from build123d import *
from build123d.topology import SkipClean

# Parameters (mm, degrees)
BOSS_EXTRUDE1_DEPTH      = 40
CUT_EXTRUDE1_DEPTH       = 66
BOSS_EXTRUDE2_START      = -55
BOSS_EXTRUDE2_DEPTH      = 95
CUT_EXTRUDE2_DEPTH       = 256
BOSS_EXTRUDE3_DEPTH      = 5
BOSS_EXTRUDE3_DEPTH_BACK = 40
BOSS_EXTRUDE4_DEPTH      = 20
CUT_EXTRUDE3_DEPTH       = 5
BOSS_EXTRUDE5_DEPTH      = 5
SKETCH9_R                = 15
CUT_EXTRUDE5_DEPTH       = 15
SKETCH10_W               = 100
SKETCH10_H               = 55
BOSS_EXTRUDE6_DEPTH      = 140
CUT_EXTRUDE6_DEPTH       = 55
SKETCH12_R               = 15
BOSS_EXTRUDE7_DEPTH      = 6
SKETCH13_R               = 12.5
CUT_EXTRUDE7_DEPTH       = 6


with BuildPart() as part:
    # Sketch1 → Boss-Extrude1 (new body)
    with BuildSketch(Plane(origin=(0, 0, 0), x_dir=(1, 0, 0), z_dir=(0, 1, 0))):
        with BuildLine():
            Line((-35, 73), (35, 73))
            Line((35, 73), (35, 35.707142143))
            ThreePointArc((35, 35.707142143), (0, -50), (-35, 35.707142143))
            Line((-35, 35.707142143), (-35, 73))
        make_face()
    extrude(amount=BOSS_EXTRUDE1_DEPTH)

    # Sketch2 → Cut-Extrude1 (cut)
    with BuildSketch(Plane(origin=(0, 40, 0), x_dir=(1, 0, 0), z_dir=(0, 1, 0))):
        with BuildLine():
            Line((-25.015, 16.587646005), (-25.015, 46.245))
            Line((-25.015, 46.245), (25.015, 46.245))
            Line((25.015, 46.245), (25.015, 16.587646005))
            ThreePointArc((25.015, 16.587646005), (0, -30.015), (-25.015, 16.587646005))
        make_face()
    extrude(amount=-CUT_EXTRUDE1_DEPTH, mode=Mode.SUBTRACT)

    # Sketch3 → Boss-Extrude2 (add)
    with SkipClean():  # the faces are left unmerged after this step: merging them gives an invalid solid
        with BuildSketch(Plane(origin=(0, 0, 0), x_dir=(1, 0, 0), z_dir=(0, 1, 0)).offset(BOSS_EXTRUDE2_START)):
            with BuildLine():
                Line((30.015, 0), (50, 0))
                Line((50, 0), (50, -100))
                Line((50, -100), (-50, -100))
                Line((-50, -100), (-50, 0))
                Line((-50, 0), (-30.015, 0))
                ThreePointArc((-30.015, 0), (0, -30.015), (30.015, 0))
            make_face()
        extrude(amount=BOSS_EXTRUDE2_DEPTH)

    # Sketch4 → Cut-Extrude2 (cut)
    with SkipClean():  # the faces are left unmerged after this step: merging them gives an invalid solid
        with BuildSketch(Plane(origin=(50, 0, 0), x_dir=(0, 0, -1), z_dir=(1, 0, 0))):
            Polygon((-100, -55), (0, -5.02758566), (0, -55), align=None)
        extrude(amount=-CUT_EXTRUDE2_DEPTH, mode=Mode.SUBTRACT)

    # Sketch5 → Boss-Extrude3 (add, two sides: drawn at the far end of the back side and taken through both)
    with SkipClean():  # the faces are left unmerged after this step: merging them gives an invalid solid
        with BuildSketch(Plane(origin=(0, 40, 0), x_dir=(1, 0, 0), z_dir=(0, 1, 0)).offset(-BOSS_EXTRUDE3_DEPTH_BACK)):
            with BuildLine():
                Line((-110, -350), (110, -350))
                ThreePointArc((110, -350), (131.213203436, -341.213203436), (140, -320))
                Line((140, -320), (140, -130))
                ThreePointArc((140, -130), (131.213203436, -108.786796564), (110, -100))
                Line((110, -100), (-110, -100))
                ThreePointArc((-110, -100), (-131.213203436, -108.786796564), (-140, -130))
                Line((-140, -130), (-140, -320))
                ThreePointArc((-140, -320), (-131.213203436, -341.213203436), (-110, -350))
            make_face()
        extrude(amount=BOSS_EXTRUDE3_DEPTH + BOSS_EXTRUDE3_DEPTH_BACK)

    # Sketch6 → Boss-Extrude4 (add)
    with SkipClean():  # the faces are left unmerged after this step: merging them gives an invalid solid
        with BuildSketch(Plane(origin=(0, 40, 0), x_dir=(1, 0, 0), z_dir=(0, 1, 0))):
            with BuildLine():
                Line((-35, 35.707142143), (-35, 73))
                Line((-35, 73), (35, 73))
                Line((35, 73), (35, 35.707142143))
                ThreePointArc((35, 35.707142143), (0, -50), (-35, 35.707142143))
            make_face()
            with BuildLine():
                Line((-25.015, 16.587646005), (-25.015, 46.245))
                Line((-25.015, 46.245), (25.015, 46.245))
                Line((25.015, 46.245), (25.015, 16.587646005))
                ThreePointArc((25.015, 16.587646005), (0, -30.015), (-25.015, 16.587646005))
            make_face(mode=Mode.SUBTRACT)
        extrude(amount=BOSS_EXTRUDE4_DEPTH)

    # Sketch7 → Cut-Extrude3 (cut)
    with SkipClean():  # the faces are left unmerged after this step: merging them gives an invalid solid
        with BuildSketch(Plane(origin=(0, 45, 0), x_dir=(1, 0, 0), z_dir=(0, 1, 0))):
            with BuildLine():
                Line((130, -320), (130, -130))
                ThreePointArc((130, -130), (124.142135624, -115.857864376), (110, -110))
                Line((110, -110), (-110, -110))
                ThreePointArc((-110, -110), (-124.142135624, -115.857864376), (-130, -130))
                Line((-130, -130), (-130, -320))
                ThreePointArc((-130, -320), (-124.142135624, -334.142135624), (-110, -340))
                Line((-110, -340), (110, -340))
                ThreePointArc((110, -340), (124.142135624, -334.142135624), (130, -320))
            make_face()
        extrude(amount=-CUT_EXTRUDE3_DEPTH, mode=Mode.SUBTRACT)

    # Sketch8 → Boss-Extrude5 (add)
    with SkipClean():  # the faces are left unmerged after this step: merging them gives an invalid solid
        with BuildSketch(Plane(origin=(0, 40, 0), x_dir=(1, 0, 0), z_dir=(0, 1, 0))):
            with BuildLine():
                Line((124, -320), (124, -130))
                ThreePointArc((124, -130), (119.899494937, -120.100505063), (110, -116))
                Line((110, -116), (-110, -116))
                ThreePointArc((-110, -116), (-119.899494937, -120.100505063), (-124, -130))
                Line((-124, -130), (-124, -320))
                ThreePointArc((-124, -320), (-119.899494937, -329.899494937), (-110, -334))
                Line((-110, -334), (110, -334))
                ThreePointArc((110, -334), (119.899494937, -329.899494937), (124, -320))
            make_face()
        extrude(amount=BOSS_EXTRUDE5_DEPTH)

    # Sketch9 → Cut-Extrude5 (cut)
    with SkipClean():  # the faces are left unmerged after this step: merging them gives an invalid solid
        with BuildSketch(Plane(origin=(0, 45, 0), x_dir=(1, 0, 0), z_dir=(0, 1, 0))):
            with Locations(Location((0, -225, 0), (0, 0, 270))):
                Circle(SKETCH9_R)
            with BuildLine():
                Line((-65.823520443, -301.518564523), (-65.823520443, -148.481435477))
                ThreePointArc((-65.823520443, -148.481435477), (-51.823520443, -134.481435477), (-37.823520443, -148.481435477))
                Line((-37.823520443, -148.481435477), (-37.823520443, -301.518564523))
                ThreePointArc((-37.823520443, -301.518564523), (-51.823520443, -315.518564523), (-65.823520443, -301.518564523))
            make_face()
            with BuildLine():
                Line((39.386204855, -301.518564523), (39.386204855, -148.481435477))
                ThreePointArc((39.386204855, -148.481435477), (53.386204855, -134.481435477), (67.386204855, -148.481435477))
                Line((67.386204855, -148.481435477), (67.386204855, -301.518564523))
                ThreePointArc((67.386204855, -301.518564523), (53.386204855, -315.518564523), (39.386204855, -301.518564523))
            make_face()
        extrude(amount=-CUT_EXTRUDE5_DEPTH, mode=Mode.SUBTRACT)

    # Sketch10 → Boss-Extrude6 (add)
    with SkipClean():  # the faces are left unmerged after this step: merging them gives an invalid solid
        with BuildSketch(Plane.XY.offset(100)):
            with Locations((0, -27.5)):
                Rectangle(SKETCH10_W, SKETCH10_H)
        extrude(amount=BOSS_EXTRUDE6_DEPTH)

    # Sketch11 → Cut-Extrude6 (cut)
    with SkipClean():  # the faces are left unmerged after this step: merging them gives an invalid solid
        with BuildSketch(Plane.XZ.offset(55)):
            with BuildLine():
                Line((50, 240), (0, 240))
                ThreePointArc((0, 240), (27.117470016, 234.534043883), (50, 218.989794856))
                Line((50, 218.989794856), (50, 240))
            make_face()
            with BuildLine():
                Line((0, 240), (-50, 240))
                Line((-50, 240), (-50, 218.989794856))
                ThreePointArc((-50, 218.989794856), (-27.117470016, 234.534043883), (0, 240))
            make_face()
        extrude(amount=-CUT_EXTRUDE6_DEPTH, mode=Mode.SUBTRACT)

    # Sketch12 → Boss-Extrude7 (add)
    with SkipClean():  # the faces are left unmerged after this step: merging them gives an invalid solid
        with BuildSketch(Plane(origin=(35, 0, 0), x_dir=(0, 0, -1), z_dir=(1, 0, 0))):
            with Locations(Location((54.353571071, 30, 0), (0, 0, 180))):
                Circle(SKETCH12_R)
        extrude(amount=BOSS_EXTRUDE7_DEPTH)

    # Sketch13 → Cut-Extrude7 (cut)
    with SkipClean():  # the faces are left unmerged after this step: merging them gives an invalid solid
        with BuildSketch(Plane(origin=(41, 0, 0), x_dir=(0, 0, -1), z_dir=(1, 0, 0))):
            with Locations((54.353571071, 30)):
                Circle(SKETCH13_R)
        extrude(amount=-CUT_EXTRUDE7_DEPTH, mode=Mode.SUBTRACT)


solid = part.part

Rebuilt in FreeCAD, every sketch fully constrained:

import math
import FreeCAD as App
import Part
import Sketcher
from FreeCAD import Vector
Q = App.Units.Quantity

doc = App.newDocument("Part")
body = doc.addObject("PartDesign::Body", "Body")

# Sketch on XZ plane
sketch1 = body.newObject("Sketcher::SketchObject", "Sketch")
sketch1.AttachmentSupport = (doc.getObject("XZ_Plane"), [""])
sketch1.MapMode = "FlatFace"
sketch1.addGeometry(Part.LineSegment(Vector(35, -73, 0), Vector(-35, -73, 0)), False)
sketch1.addGeometry(Part.LineSegment(Vector(-35, -73, 0), Vector(-35, -36, 0)), False)
sketch1.addGeometry(Part.ArcOfCircle(Part.Circle(Vector(0, 0, 0), Vector(0, 0, 1), 50), math.radians(-46), math.radians(226)), False)
sketch1.addGeometry(Part.LineSegment(Vector(35, -36, 0), Vector(35, -73, 0)), False)
sketch1.addConstraint(Sketcher.Constraint("Coincident", 0, 2, 1, 1))
sketch1.addConstraint(Sketcher.Constraint("Coincident", 1, 2, 2, 2))
sketch1.addConstraint(Sketcher.Constraint("Coincident", 2, 1, 3, 1))
sketch1.addConstraint(Sketcher.Constraint("Coincident", 3, 2, 0, 1))
sketch1.addConstraint(Sketcher.Constraint("Horizontal", 0))
sketch1.addConstraint(Sketcher.Constraint("Vertical", 1))
sketch1.addConstraint(Sketcher.Constraint("Vertical", 3))
sketch1.addConstraint(Sketcher.Constraint("Coincident", 2, 3, -1, 1))
sketch1.addConstraint(Sketcher.Constraint("Horizontal", 1, 2, 2, 1))
sketch1.addConstraint(Sketcher.Constraint("Radius", 2, Q("50 mm")))
sketch1.addConstraint(Sketcher.Constraint("DistanceX", 0, 2, 0, 1, Q("70 mm")))
sketch1.addConstraint(Sketcher.Constraint("DistanceY", 0, 2, -1, 1, Q("73 mm")))
pad1 = body.newObject("PartDesign::Pad", "Pad")
pad1.Profile = sketch1
pad1.Length = 40
pad1.Reversed = True

# Sketch on XZ plane
sketch2 = body.newObject("Sketcher::SketchObject", "Sketch001")
sketch2.AttachmentSupport = (doc.getObject("XZ_Plane"), [""])
sketch2.MapMode = "FlatFace"
sketch2.AttachmentOffset = App.Placement(Vector(0, 0, -40), App.Rotation())
sketch2.addGeometry(Part.LineSegment(Vector(-25, -46, 0), Vector(-25, -17, 0)), False)
sketch2.addGeometry(Part.ArcOfCircle(Part.Circle(Vector(0, 0, 0), Vector(0, 0, 1), 30), math.radians(-34), math.radians(214)), False)
sketch2.addGeometry(Part.LineSegment(Vector(25, -17, 0), Vector(25, -46, 0)), False)
sketch2.addGeometry(Part.LineSegment(Vector(25, -46, 0), Vector(-25, -46, 0)), False)
sketch2.addConstraint(Sketcher.Constraint("Coincident", 0, 2, 1, 2))
sketch2.addConstraint(Sketcher.Constraint("Coincident", 1, 1, 2, 1))
sketch2.addConstraint(Sketcher.Constraint("Coincident", 2, 2, 3, 1))
sketch2.addConstraint(Sketcher.Constraint("Coincident", 3, 2, 0, 1))
sketch2.addConstraint(Sketcher.Constraint("Vertical", 0))
sketch2.addConstraint(Sketcher.Constraint("Vertical", 2))
sketch2.addConstraint(Sketcher.Constraint("Horizontal", 3))
sketch2.addConstraint(Sketcher.Constraint("Coincident", 1, 3, -1, 1))
sketch2.addConstraint(Sketcher.Constraint("Horizontal", 0, 2, 1, 1))
sketch2.addConstraint(Sketcher.Constraint("Radius", 1, Q("30.015 mm")))
sketch2.addConstraint(Sketcher.Constraint("DistanceX", 3, 2, 3, 1, Q("50.03 mm")))
sketch2.addConstraint(Sketcher.Constraint("DistanceY", 2, 2, -1, 1, Q("46.245 mm")))
pocket1 = body.newObject("PartDesign::Pocket", "Pocket")
pocket1.Profile = sketch2
pocket1.Length = 66
pocket1.Reversed = True

# Sketch on XZ plane
sketch3 = body.newObject("Sketcher::SketchObject", "Sketch002")
sketch3.AttachmentSupport = (doc.getObject("XZ_Plane"), [""])
sketch3.MapMode = "FlatFace"
sketch3.AttachmentOffset = App.Placement(Vector(0, 0, 55), App.Rotation())
sketch3.addGeometry(Part.LineSegment(Vector(50, 0, 0), Vector(30, 0, 0)), False)
sketch3.addGeometry(Part.ArcOfCircle(Part.Circle(Vector(0, 0, 0), Vector(0, 0, 1), 30), math.radians(0), math.radians(180)), False)
sketch3.addGeometry(Part.LineSegment(Vector(-30, 0, 0), Vector(-50, 0, 0)), False)
sketch3.addGeometry(Part.LineSegment(Vector(-50, 0, 0), Vector(-50, 100, 0)), False)
sketch3.addGeometry(Part.LineSegment(Vector(-50, 100, 0), Vector(50, 100, 0)), False)
sketch3.addGeometry(Part.LineSegment(Vector(50, 100, 0), Vector(50, 0, 0)), False)
sketch3.addConstraint(Sketcher.Constraint("Coincident", 0, 2, 1, 1))
sketch3.addConstraint(Sketcher.Constraint("Coincident", 1, 2, 2, 1))
sketch3.addConstraint(Sketcher.Constraint("Coincident", 2, 2, 3, 1))
sketch3.addConstraint(Sketcher.Constraint("Coincident", 3, 2, 4, 1))
sketch3.addConstraint(Sketcher.Constraint("Coincident", 4, 2, 5, 1))
sketch3.addConstraint(Sketcher.Constraint("Coincident", 5, 2, 0, 1))
sketch3.addConstraint(Sketcher.Constraint("Horizontal", 0))
sketch3.addConstraint(Sketcher.Constraint("Horizontal", 2))
sketch3.addConstraint(Sketcher.Constraint("Vertical", 3))
sketch3.addConstraint(Sketcher.Constraint("Horizontal", 4))
sketch3.addConstraint(Sketcher.Constraint("Vertical", 5))
sketch3.addConstraint(Sketcher.Constraint("Coincident", 1, 3, -1, 1))
sketch3.addConstraint(Sketcher.Constraint("Symmetric", 2, 2, 5, 2, -1, 1))
sketch3.addConstraint(Sketcher.Constraint("PointOnObject", 0, 2, -1))
sketch3.addConstraint(Sketcher.Constraint("Equal", 4, 3))
sketch3.addConstraint(Sketcher.Constraint("DistanceX", 4, 1, 4, 2, Q("100 mm")))
sketch3.addConstraint(Sketcher.Constraint("Radius", 1, Q("30.015 mm")))
pad2 = body.newObject("PartDesign::Pad", "Pad001")
pad2.Profile = sketch3
pad2.Length = 95
pad2.Reversed = True

# Sketch on YZ plane
sketch4 = body.newObject("Sketcher::SketchObject", "Sketch003")
sketch4.AttachmentSupport = (doc.getObject("YZ_Plane"), [""])
sketch4.MapMode = "FlatFace"
sketch4.AttachmentOffset = App.Placement(Vector(0, 0, 50), App.Rotation())
sketch4.addGeometry(Part.LineSegment(Vector(-5, 0, 0), Vector(-55, 100, 0)), False)
sketch4.addGeometry(Part.LineSegment(Vector(-55, 100, 0), Vector(-55, 0, 0)), False)
sketch4.addGeometry(Part.LineSegment(Vector(-55, 0, 0), Vector(-5, 0, 0)), False)
sketch4.addConstraint(Sketcher.Constraint("Coincident", 0, 2, 1, 1))
sketch4.addConstraint(Sketcher.Constraint("Coincident", 1, 2, 2, 1))
sketch4.addConstraint(Sketcher.Constraint("Coincident", 2, 2, 0, 1))
sketch4.addConstraint(Sketcher.Constraint("Vertical", 1))
sketch4.addConstraint(Sketcher.Constraint("Horizontal", 2))
sketch4.addConstraint(Sketcher.Constraint("PointOnObject", 1, 2, -1))
sketch4.addConstraint(Sketcher.Constraint("DistanceY", 1, 2, 1, 1, Q("100 mm")))
sketch4.addConstraint(Sketcher.Constraint("DistanceX", 0, 2, -1, 1, Q("55 mm")))
sketch4.addConstraint(Sketcher.Constraint("DistanceX", 2, 1, 2, 2, Q("49.972414 mm")))
pocket2 = body.newObject("PartDesign::Pocket", "Pocket001")
pocket2.Profile = sketch4
pocket2.Length = 256

# Sketch on XZ plane
sketch5 = body.newObject("Sketcher::SketchObject", "Sketch004")
sketch5.AttachmentSupport = (doc.getObject("XZ_Plane"), [""])
sketch5.MapMode = "FlatFace"
sketch5.AttachmentOffset = App.Placement(Vector(0, 0, -40), App.Rotation())
sketch5.addGeometry(Part.LineSegment(Vector(-110, 350, 0), Vector(110, 350, 0)), False)
sketch5.addGeometry(Part.ArcOfCircle(Part.Circle(Vector(110, 320, 0), Vector(0, 0, 1), 30), math.radians(0), math.radians(90)), False)
sketch5.addGeometry(Part.LineSegment(Vector(140, 320, 0), Vector(140, 130, 0)), False)
sketch5.addGeometry(Part.ArcOfCircle(Part.Circle(Vector(110, 130, 0), Vector(0, 0, 1), 30), math.radians(-90), math.radians(0)), False)
sketch5.addGeometry(Part.LineSegment(Vector(110, 100, 0), Vector(-110, 100, 0)), False)
sketch5.addGeometry(Part.ArcOfCircle(Part.Circle(Vector(-110, 130, 0), Vector(0, 0, 1), 30), math.radians(180), math.radians(270)), False)
sketch5.addGeometry(Part.LineSegment(Vector(-140, 130, 0), Vector(-140, 320, 0)), False)
sketch5.addGeometry(Part.ArcOfCircle(Part.Circle(Vector(-110, 320, 0), Vector(0, 0, 1), 30), math.radians(90), math.radians(180)), False)
sketch5.addConstraint(Sketcher.Constraint("Tangent", 0, 2, 1, 2))
sketch5.addConstraint(Sketcher.Constraint("Tangent", 1, 1, 2, 1))
sketch5.addConstraint(Sketcher.Constraint("Tangent", 2, 2, 3, 2))
sketch5.addConstraint(Sketcher.Constraint("Tangent", 3, 1, 4, 1))
sketch5.addConstraint(Sketcher.Constraint("Tangent", 4, 2, 5, 2))
sketch5.addConstraint(Sketcher.Constraint("Tangent", 5, 1, 6, 1))
sketch5.addConstraint(Sketcher.Constraint("Tangent", 6, 2, 7, 2))
sketch5.addConstraint(Sketcher.Constraint("Tangent", 7, 1, 0, 1))
sketch5.addConstraint(Sketcher.Constraint("Horizontal", 0))
sketch5.addConstraint(Sketcher.Constraint("Vertical", 2))
sketch5.addConstraint(Sketcher.Constraint("Horizontal", 4))
sketch5.addConstraint(Sketcher.Constraint("Vertical", 6))
sketch5.addConstraint(Sketcher.Constraint("Equal", 1, 3))
sketch5.addConstraint(Sketcher.Constraint("Equal", 3, 5))
sketch5.addConstraint(Sketcher.Constraint("Equal", 5, 7))
sketch5.addConstraint(Sketcher.Constraint("Radius", 1, Q("30 mm")))
sketch5.addConstraint(Sketcher.Constraint("DistanceX", 0, 1, 0, 2, Q("220 mm")))
sketch5.addConstraint(Sketcher.Constraint("DistanceY", 2, 2, 2, 1, Q("190 mm")))
sketch5.addConstraint(Sketcher.Constraint("DistanceX", -1, 1, 1, 3, Q("110 mm")))
sketch5.addConstraint(Sketcher.Constraint("DistanceY", -1, 1, 1, 3, Q("320 mm")))
pad3 = body.newObject("PartDesign::Pad", "Pad002")
pad3.Profile = sketch5
pad3.Type = "TwoLengths"
pad3.Length = 5
pad3.Length2 = 40
pad3.Reversed = True

# Sketch on XZ plane
sketch6 = body.newObject("Sketcher::SketchObject", "Sketch005")
sketch6.AttachmentSupport = (doc.getObject("XZ_Plane"), [""])
sketch6.MapMode = "FlatFace"
sketch6.AttachmentOffset = App.Placement(Vector(0, 0, -40), App.Rotation())
sketch6.addGeometry(Part.LineSegment(Vector(-35, -73, 0), Vector(-35, -36, 0)), False)
sketch6.addGeometry(Part.ArcOfCircle(Part.Circle(Vector(0, 0, 0), Vector(0, 0, 1), 50), math.radians(-46), math.radians(226)), False)
sketch6.addGeometry(Part.LineSegment(Vector(35, -36, 0), Vector(35, -73, 0)), False)
sketch6.addGeometry(Part.LineSegment(Vector(35, -73, 0), Vector(-35, -73, 0)), False)
sketch6.addGeometry(Part.LineSegment(Vector(-25, -17, 0), Vector(-25, -46, 0)), False)
sketch6.addGeometry(Part.LineSegment(Vector(-25, -46, 0), Vector(25, -46, 0)), False)
sketch6.addGeometry(Part.LineSegment(Vector(25, -46, 0), Vector(25, -17, 0)), False)
sketch6.addGeometry(Part.ArcOfCircle(Part.Circle(Vector(0, 0, 0), Vector(0, 0, 1), 30), math.radians(-34), math.radians(214)), False)
sketch6.addConstraint(Sketcher.Constraint("Coincident", 0, 2, 1, 2))
sketch6.addConstraint(Sketcher.Constraint("Coincident", 1, 1, 2, 1))
sketch6.addConstraint(Sketcher.Constraint("Coincident", 2, 2, 3, 1))
sketch6.addConstraint(Sketcher.Constraint("Coincident", 3, 2, 0, 1))
sketch6.addConstraint(Sketcher.Constraint("Coincident", 4, 2, 5, 1))
sketch6.addConstraint(Sketcher.Constraint("Coincident", 5, 2, 6, 1))
sketch6.addConstraint(Sketcher.Constraint("Coincident", 6, 2, 7, 1))
sketch6.addConstraint(Sketcher.Constraint("Coincident", 7, 2, 4, 1))
sketch6.addConstraint(Sketcher.Constraint("Vertical", 0))
sketch6.addConstraint(Sketcher.Constraint("Vertical", 2))
sketch6.addConstraint(Sketcher.Constraint("Horizontal", 3))
sketch6.addConstraint(Sketcher.Constraint("Vertical", 4))
sketch6.addConstraint(Sketcher.Constraint("Horizontal", 5))
sketch6.addConstraint(Sketcher.Constraint("Vertical", 6))
sketch6.addConstraint(Sketcher.Constraint("Coincident", 1, 3, -1, 1))
sketch6.addConstraint(Sketcher.Constraint("Coincident", 7, 3, -1, 1))
sketch6.addConstraint(Sketcher.Constraint("Horizontal", 0, 2, 1, 1))
sketch6.addConstraint(Sketcher.Constraint("Horizontal", 6, 2, 7, 2))
sketch6.addConstraint(Sketcher.Constraint("Radius", 1, Q("50 mm")))
sketch6.addConstraint(Sketcher.Constraint("DistanceX", 3, 2, 3, 1, Q("70 mm")))
sketch6.addConstraint(Sketcher.Constraint("DistanceY", 2, 2, -1, 1, Q("73 mm")))
sketch6.addConstraint(Sketcher.Constraint("Radius", 7, Q("30.015 mm")))
sketch6.addConstraint(Sketcher.Constraint("DistanceX", 5, 1, 5, 2, Q("50.03 mm")))
sketch6.addConstraint(Sketcher.Constraint("DistanceY", 4, 2, -1, 1, Q("46.245 mm")))
pad4 = body.newObject("PartDesign::Pad", "Pad003")
pad4.Profile = sketch6
pad4.Length = 20
pad4.Reversed = True

# Sketch on XZ plane
sketch7 = body.newObject("Sketcher::SketchObject", "Sketch006")
sketch7.AttachmentSupport = (doc.getObject("XZ_Plane"), [""])
sketch7.MapMode = "FlatFace"
sketch7.AttachmentOffset = App.Placement(Vector(0, 0, -45), App.Rotation())
sketch7.addGeometry(Part.LineSegment(Vector(130, 320, 0), Vector(130, 130, 0)), False)
sketch7.addGeometry(Part.ArcOfCircle(Part.Circle(Vector(110, 130, 0), Vector(0, 0, 1), 20), math.radians(-90), math.radians(0)), False)
sketch7.addGeometry(Part.LineSegment(Vector(110, 110, 0), Vector(-110, 110, 0)), False)
sketch7.addGeometry(Part.ArcOfCircle(Part.Circle(Vector(-110, 130, 0), Vector(0, 0, 1), 20), math.radians(180), math.radians(270)), False)
sketch7.addGeometry(Part.LineSegment(Vector(-130, 130, 0), Vector(-130, 320, 0)), False)
sketch7.addGeometry(Part.ArcOfCircle(Part.Circle(Vector(-110, 320, 0), Vector(0, 0, 1), 20), math.radians(90), math.radians(180)), False)
sketch7.addGeometry(Part.LineSegment(Vector(-110, 340, 0), Vector(110, 340, 0)), False)
sketch7.addGeometry(Part.ArcOfCircle(Part.Circle(Vector(110, 320, 0), Vector(0, 0, 1), 20), math.radians(0), math.radians(90)), False)
sketch7.addConstraint(Sketcher.Constraint("Tangent", 0, 2, 1, 2))
sketch7.addConstraint(Sketcher.Constraint("Tangent", 1, 1, 2, 1))
sketch7.addConstraint(Sketcher.Constraint("Tangent", 2, 2, 3, 2))
sketch7.addConstraint(Sketcher.Constraint("Tangent", 3, 1, 4, 1))
sketch7.addConstraint(Sketcher.Constraint("Tangent", 4, 2, 5, 2))
sketch7.addConstraint(Sketcher.Constraint("Tangent", 5, 1, 6, 1))
sketch7.addConstraint(Sketcher.Constraint("Tangent", 6, 2, 7, 2))
sketch7.addConstraint(Sketcher.Constraint("Tangent", 7, 1, 0, 1))
sketch7.addConstraint(Sketcher.Constraint("Vertical", 0))
sketch7.addConstraint(Sketcher.Constraint("Horizontal", 2))
sketch7.addConstraint(Sketcher.Constraint("Vertical", 4))
sketch7.addConstraint(Sketcher.Constraint("Horizontal", 6))
sketch7.addConstraint(Sketcher.Constraint("Equal", 1, 3))
sketch7.addConstraint(Sketcher.Constraint("Equal", 3, 5))
sketch7.addConstraint(Sketcher.Constraint("Equal", 5, 7))
sketch7.addConstraint(Sketcher.Constraint("Radius", 1, Q("20 mm")))
sketch7.addConstraint(Sketcher.Constraint("DistanceX", 2, 2, 2, 1, Q("220 mm")))
sketch7.addConstraint(Sketcher.Constraint("DistanceY", 0, 2, 0, 1, Q("190 mm")))
sketch7.addConstraint(Sketcher.Constraint("DistanceX", -1, 1, 1, 3, Q("110 mm")))
sketch7.addConstraint(Sketcher.Constraint("DistanceY", -1, 1, 1, 3, Q("130 mm")))
pocket3 = body.newObject("PartDesign::Pocket", "Pocket002")
pocket3.Profile = sketch7
pocket3.Length = 5
pocket3.Reversed = True

# Sketch on XZ plane
sketch8 = body.newObject("Sketcher::SketchObject", "Sketch007")
sketch8.AttachmentSupport = (doc.getObject("XZ_Plane"), [""])
sketch8.MapMode = "FlatFace"
sketch8.AttachmentOffset = App.Placement(Vector(0, 0, -40), App.Rotation())
sketch8.addGeometry(Part.LineSegment(Vector(124, 320, 0), Vector(124, 130, 0)), False)
sketch8.addGeometry(Part.ArcOfCircle(Part.Circle(Vector(110, 130, 0), Vector(0, 0, 1), 14), math.radians(-90), math.radians(0)), False)
sketch8.addGeometry(Part.LineSegment(Vector(110, 116, 0), Vector(-110, 116, 0)), False)
sketch8.addGeometry(Part.ArcOfCircle(Part.Circle(Vector(-110, 130, 0), Vector(0, 0, 1), 14), math.radians(180), math.radians(270)), False)
sketch8.addGeometry(Part.LineSegment(Vector(-124, 130, 0), Vector(-124, 320, 0)), False)
sketch8.addGeometry(Part.ArcOfCircle(Part.Circle(Vector(-110, 320, 0), Vector(0, 0, 1), 14), math.radians(90), math.radians(180)), False)
sketch8.addGeometry(Part.LineSegment(Vector(-110, 334, 0), Vector(110, 334, 0)), False)
sketch8.addGeometry(Part.ArcOfCircle(Part.Circle(Vector(110, 320, 0), Vector(0, 0, 1), 14), math.radians(0), math.radians(90)), False)
sketch8.addConstraint(Sketcher.Constraint("Tangent", 0, 2, 1, 2))
sketch8.addConstraint(Sketcher.Constraint("Tangent", 1, 1, 2, 1))
sketch8.addConstraint(Sketcher.Constraint("Tangent", 2, 2, 3, 2))
sketch8.addConstraint(Sketcher.Constraint("Tangent", 3, 1, 4, 1))
sketch8.addConstraint(Sketcher.Constraint("Tangent", 4, 2, 5, 2))
sketch8.addConstraint(Sketcher.Constraint("Tangent", 5, 1, 6, 1))
sketch8.addConstraint(Sketcher.Constraint("Tangent", 6, 2, 7, 2))
sketch8.addConstraint(Sketcher.Constraint("Tangent", 7, 1, 0, 1))
sketch8.addConstraint(Sketcher.Constraint("Vertical", 0))
sketch8.addConstraint(Sketcher.Constraint("Horizontal", 2))
sketch8.addConstraint(Sketcher.Constraint("Vertical", 4))
sketch8.addConstraint(Sketcher.Constraint("Horizontal", 6))
sketch8.addConstraint(Sketcher.Constraint("Equal", 1, 3))
sketch8.addConstraint(Sketcher.Constraint("Equal", 3, 5))
sketch8.addConstraint(Sketcher.Constraint("Equal", 5, 7))
sketch8.addConstraint(Sketcher.Constraint("Radius", 1, Q("14 mm")))
sketch8.addConstraint(Sketcher.Constraint("DistanceX", 2, 2, 2, 1, Q("220 mm")))
sketch8.addConstraint(Sketcher.Constraint("DistanceY", 0, 2, 0, 1, Q("190 mm")))
sketch8.addConstraint(Sketcher.Constraint("DistanceX", -1, 1, 1, 3, Q("110 mm")))
sketch8.addConstraint(Sketcher.Constraint("DistanceY", -1, 1, 1, 3, Q("130 mm")))
pad5 = body.newObject("PartDesign::Pad", "Pad004")
pad5.Profile = sketch8
pad5.Length = 5
pad5.Reversed = True

# Sketch on XZ plane
sketch9 = body.newObject("Sketcher::SketchObject", "Sketch008")
sketch9.AttachmentSupport = (doc.getObject("XZ_Plane"), [""])
sketch9.MapMode = "FlatFace"
sketch9.AttachmentOffset = App.Placement(Vector(0, 0, -45), App.Rotation())
sketch9.addGeometry(Part.Circle(Vector(0, 225, 0), Vector(0, 0, 1), 15), False)
sketch9.addGeometry(Part.LineSegment(Vector(-66, 148, 0), Vector(-66, 302, 0)), False)
sketch9.addGeometry(Part.ArcOfCircle(Part.Circle(Vector(-52, 302, 0), Vector(0, 0, 1), 14), math.radians(0), math.radians(180)), False)
sketch9.addGeometry(Part.LineSegment(Vector(-38, 302, 0), Vector(-38, 148, 0)), False)
sketch9.addGeometry(Part.ArcOfCircle(Part.Circle(Vector(-52, 148, 0), Vector(0, 0, 1), 14), math.radians(180), math.radians(360)), False)
sketch9.addGeometry(Part.LineSegment(Vector(39, 148, 0), Vector(39, 302, 0)), False)
sketch9.addGeometry(Part.ArcOfCircle(Part.Circle(Vector(53, 302, 0), Vector(0, 0, 1), 14), math.radians(0), math.radians(180)), False)
sketch9.addGeometry(Part.LineSegment(Vector(67, 302, 0), Vector(67, 148, 0)), False)
sketch9.addGeometry(Part.ArcOfCircle(Part.Circle(Vector(53, 148, 0), Vector(0, 0, 1), 14), math.radians(180), math.radians(360)), False)
sketch9.addConstraint(Sketcher.Constraint("Tangent", 1, 2, 2, 2))
sketch9.addConstraint(Sketcher.Constraint("Tangent", 2, 1, 3, 1))
sketch9.addConstraint(Sketcher.Constraint("Tangent", 3, 2, 4, 2))
sketch9.addConstraint(Sketcher.Constraint("Tangent", 4, 1, 1, 1))
sketch9.addConstraint(Sketcher.Constraint("Tangent", 5, 2, 6, 2))
sketch9.addConstraint(Sketcher.Constraint("Tangent", 6, 1, 7, 1))
sketch9.addConstraint(Sketcher.Constraint("Tangent", 7, 2, 8, 2))
sketch9.addConstraint(Sketcher.Constraint("Tangent", 8, 1, 5, 1))
sketch9.addConstraint(Sketcher.Constraint("Vertical", 1))
sketch9.addConstraint(Sketcher.Constraint("Vertical", 3))
sketch9.addConstraint(Sketcher.Constraint("Vertical", 5))
sketch9.addConstraint(Sketcher.Constraint("Vertical", 7))
sketch9.addConstraint(Sketcher.Constraint("Equal", 4, 6))
sketch9.addConstraint(Sketcher.Constraint("PointOnObject", 0, 3, -2))
sketch9.addConstraint(Sketcher.Constraint("Horizontal", 2, 3, 6, 3))
sketch9.addConstraint(Sketcher.Constraint("Horizontal", 4, 3, 8, 3))
sketch9.addConstraint(Sketcher.Constraint("Diameter", 0, Q("30 mm")))
sketch9.addConstraint(Sketcher.Constraint("Radius", 2, Q("14 mm")))
sketch9.addConstraint(Sketcher.Constraint("DistanceY", -1, 1, 0, 3, Q("225 mm")))
sketch9.addConstraint(Sketcher.Constraint("DistanceY", 1, 1, 1, 2, Q("153.037129 mm")))
sketch9.addConstraint(Sketcher.Constraint("DistanceX", 2, 3, -1, 1, Q("51.82352 mm")))
sketch9.addConstraint(Sketcher.Constraint("DistanceY", -1, 1, 2, 3, Q("301.518565 mm")))
sketch9.addConstraint(Sketcher.Constraint("DistanceX", -1, 1, 6, 3, Q("53.386205 mm")))
pocket4 = body.newObject("PartDesign::Pocket", "Pocket003")
pocket4.Profile = sketch9
pocket4.Length = 15
pocket4.Reversed = True

# Sketch on XY plane
sketch10 = body.newObject("Sketcher::SketchObject", "Sketch009")
sketch10.AttachmentSupport = (doc.getObject("XY_Plane"), [""])
sketch10.MapMode = "FlatFace"
sketch10.AttachmentOffset = App.Placement(Vector(0, 0, 100), App.Rotation())
sketch10.addGeometry(Part.LineSegment(Vector(-50, 0, 0), Vector(-50, -55, 0)), False)
sketch10.addGeometry(Part.LineSegment(Vector(-50, -55, 0), Vector(50, -55, 0)), False)
sketch10.addGeometry(Part.LineSegment(Vector(50, -55, 0), Vector(50, 0, 0)), False)
sketch10.addGeometry(Part.LineSegment(Vector(50, 0, 0), Vector(-50, 0, 0)), False)
sketch10.addConstraint(Sketcher.Constraint("Coincident", 0, 2, 1, 1))
sketch10.addConstraint(Sketcher.Constraint("Coincident", 1, 2, 2, 1))
sketch10.addConstraint(Sketcher.Constraint("Coincident", 2, 2, 3, 1))
sketch10.addConstraint(Sketcher.Constraint("Coincident", 3, 2, 0, 1))
sketch10.addConstraint(Sketcher.Constraint("Vertical", 0))
sketch10.addConstraint(Sketcher.Constraint("Horizontal", 1))
sketch10.addConstraint(Sketcher.Constraint("Vertical", 2))
sketch10.addConstraint(Sketcher.Constraint("Horizontal", 3))
sketch10.addConstraint(Sketcher.Constraint("Symmetric", 2, 2, 3, 2, -1, 1))
sketch10.addConstraint(Sketcher.Constraint("DistanceX", 1, 1, 1, 2, Q("100 mm")))
sketch10.addConstraint(Sketcher.Constraint("DistanceY", 0, 2, 0, 1, Q("55 mm")))
pad6 = body.newObject("PartDesign::Pad", "Pad005")
pad6.Profile = sketch10
pad6.Length = 140

# Sketch on XZ plane
sketch11 = body.newObject("Sketcher::SketchObject", "Sketch010")
sketch11.AttachmentSupport = (doc.getObject("XZ_Plane"), [""])
sketch11.MapMode = "FlatFace"
sketch11.AttachmentOffset = App.Placement(Vector(0, 0, 55), App.Rotation())
sketch11.addGeometry(Part.LineSegment(Vector(50, 240, 0), Vector(0, 240, 0)), False)
sketch11.addGeometry(Part.ArcOfCircle(Part.Circle(Vector(0, 170, 0), Vector(0, 0, 1), 70), math.radians(44), math.radians(90)), False)
sketch11.addGeometry(Part.LineSegment(Vector(50, 219, 0), Vector(50, 240, 0)), False)
sketch11.addGeometry(Part.LineSegment(Vector(0, 240, 0), Vector(-50, 240, 0)), False)
sketch11.addGeometry(Part.LineSegment(Vector(-50, 240, 0), Vector(-50, 219, 0)), False)
sketch11.addGeometry(Part.ArcOfCircle(Part.Circle(Vector(0, 170, 0), Vector(0, 0, 1), 70), math.radians(90), math.radians(136)), False)
sketch11.addConstraint(Sketcher.Constraint("Tangent", 0, 2, 1, 2))
sketch11.addConstraint(Sketcher.Constraint("Coincident", 1, 1, 2, 1))
sketch11.addConstraint(Sketcher.Constraint("Coincident", 2, 2, 0, 1))
sketch11.addConstraint(Sketcher.Constraint("Coincident", 3, 2, 4, 1))
sketch11.addConstraint(Sketcher.Constraint("Coincident", 4, 2, 5, 2))
sketch11.addConstraint(Sketcher.Constraint("Tangent", 5, 1, 3, 1))
sketch11.addConstraint(Sketcher.Constraint("Horizontal", 0))
sketch11.addConstraint(Sketcher.Constraint("Vertical", 2))
sketch11.addConstraint(Sketcher.Constraint("Horizontal", 3))
sketch11.addConstraint(Sketcher.Constraint("Vertical", 4))
sketch11.addConstraint(Sketcher.Constraint("Coincident", 5, 3, 1, 3))
sketch11.addConstraint(Sketcher.Constraint("Equal", 1, 5))
sketch11.addConstraint(Sketcher.Constraint("Symmetric", 1, 1, 4, 2, -2))
sketch11.addConstraint(Sketcher.Constraint("Radius", 1, Q("70 mm")))
sketch11.addConstraint(Sketcher.Constraint("DistanceX", 0, 2, 0, 1, Q("50 mm")))
sketch11.addConstraint(Sketcher.Constraint("DistanceY", -1, 1, 1, 3, Q("170 mm")))
pocket5 = body.newObject("PartDesign::Pocket", "Pocket004")
pocket5.Profile = sketch11
pocket5.Length = 55

# Sketch on YZ plane
sketch12 = body.newObject("Sketcher::SketchObject", "Sketch011")
sketch12.AttachmentSupport = (doc.getObject("YZ_Plane"), [""])
sketch12.MapMode = "FlatFace"
sketch12.AttachmentOffset = App.Placement(Vector(0, 0, 35), App.Rotation())
sketch12.addGeometry(Part.Circle(Vector(30, -54, 0), Vector(0, 0, 1), 15), False)
sketch12.addConstraint(Sketcher.Constraint("Diameter", 0, Q("30 mm")))
sketch12.addConstraint(Sketcher.Constraint("DistanceX", -1, 1, 0, 3, Q("30 mm")))
sketch12.addConstraint(Sketcher.Constraint("DistanceY", 0, 3, -1, 1, Q("54.353571 mm")))
pad7 = body.newObject("PartDesign::Pad", "Pad006")
pad7.Profile = sketch12
pad7.Length = 6

# Sketch on YZ plane
sketch13 = body.newObject("Sketcher::SketchObject", "Sketch012")
sketch13.AttachmentSupport = (doc.getObject("YZ_Plane"), [""])
sketch13.MapMode = "FlatFace"
sketch13.AttachmentOffset = App.Placement(Vector(0, 0, 41), App.Rotation())
sketch13.addGeometry(Part.Circle(Vector(30, -54, 0), Vector(0, 0, 1), 12), False)
sketch13.addConstraint(Sketcher.Constraint("Diameter", 0, Q("25 mm")))
sketch13.addConstraint(Sketcher.Constraint("DistanceX", -1, 1, 0, 3, Q("30 mm")))
sketch13.addConstraint(Sketcher.Constraint("DistanceY", 0, 3, -1, 1, Q("54.353571 mm")))
pocket6 = body.newObject("PartDesign::Pocket", "Pocket005")
pocket6.Profile = sketch13
pocket6.Length = 6

doc.recompute()
